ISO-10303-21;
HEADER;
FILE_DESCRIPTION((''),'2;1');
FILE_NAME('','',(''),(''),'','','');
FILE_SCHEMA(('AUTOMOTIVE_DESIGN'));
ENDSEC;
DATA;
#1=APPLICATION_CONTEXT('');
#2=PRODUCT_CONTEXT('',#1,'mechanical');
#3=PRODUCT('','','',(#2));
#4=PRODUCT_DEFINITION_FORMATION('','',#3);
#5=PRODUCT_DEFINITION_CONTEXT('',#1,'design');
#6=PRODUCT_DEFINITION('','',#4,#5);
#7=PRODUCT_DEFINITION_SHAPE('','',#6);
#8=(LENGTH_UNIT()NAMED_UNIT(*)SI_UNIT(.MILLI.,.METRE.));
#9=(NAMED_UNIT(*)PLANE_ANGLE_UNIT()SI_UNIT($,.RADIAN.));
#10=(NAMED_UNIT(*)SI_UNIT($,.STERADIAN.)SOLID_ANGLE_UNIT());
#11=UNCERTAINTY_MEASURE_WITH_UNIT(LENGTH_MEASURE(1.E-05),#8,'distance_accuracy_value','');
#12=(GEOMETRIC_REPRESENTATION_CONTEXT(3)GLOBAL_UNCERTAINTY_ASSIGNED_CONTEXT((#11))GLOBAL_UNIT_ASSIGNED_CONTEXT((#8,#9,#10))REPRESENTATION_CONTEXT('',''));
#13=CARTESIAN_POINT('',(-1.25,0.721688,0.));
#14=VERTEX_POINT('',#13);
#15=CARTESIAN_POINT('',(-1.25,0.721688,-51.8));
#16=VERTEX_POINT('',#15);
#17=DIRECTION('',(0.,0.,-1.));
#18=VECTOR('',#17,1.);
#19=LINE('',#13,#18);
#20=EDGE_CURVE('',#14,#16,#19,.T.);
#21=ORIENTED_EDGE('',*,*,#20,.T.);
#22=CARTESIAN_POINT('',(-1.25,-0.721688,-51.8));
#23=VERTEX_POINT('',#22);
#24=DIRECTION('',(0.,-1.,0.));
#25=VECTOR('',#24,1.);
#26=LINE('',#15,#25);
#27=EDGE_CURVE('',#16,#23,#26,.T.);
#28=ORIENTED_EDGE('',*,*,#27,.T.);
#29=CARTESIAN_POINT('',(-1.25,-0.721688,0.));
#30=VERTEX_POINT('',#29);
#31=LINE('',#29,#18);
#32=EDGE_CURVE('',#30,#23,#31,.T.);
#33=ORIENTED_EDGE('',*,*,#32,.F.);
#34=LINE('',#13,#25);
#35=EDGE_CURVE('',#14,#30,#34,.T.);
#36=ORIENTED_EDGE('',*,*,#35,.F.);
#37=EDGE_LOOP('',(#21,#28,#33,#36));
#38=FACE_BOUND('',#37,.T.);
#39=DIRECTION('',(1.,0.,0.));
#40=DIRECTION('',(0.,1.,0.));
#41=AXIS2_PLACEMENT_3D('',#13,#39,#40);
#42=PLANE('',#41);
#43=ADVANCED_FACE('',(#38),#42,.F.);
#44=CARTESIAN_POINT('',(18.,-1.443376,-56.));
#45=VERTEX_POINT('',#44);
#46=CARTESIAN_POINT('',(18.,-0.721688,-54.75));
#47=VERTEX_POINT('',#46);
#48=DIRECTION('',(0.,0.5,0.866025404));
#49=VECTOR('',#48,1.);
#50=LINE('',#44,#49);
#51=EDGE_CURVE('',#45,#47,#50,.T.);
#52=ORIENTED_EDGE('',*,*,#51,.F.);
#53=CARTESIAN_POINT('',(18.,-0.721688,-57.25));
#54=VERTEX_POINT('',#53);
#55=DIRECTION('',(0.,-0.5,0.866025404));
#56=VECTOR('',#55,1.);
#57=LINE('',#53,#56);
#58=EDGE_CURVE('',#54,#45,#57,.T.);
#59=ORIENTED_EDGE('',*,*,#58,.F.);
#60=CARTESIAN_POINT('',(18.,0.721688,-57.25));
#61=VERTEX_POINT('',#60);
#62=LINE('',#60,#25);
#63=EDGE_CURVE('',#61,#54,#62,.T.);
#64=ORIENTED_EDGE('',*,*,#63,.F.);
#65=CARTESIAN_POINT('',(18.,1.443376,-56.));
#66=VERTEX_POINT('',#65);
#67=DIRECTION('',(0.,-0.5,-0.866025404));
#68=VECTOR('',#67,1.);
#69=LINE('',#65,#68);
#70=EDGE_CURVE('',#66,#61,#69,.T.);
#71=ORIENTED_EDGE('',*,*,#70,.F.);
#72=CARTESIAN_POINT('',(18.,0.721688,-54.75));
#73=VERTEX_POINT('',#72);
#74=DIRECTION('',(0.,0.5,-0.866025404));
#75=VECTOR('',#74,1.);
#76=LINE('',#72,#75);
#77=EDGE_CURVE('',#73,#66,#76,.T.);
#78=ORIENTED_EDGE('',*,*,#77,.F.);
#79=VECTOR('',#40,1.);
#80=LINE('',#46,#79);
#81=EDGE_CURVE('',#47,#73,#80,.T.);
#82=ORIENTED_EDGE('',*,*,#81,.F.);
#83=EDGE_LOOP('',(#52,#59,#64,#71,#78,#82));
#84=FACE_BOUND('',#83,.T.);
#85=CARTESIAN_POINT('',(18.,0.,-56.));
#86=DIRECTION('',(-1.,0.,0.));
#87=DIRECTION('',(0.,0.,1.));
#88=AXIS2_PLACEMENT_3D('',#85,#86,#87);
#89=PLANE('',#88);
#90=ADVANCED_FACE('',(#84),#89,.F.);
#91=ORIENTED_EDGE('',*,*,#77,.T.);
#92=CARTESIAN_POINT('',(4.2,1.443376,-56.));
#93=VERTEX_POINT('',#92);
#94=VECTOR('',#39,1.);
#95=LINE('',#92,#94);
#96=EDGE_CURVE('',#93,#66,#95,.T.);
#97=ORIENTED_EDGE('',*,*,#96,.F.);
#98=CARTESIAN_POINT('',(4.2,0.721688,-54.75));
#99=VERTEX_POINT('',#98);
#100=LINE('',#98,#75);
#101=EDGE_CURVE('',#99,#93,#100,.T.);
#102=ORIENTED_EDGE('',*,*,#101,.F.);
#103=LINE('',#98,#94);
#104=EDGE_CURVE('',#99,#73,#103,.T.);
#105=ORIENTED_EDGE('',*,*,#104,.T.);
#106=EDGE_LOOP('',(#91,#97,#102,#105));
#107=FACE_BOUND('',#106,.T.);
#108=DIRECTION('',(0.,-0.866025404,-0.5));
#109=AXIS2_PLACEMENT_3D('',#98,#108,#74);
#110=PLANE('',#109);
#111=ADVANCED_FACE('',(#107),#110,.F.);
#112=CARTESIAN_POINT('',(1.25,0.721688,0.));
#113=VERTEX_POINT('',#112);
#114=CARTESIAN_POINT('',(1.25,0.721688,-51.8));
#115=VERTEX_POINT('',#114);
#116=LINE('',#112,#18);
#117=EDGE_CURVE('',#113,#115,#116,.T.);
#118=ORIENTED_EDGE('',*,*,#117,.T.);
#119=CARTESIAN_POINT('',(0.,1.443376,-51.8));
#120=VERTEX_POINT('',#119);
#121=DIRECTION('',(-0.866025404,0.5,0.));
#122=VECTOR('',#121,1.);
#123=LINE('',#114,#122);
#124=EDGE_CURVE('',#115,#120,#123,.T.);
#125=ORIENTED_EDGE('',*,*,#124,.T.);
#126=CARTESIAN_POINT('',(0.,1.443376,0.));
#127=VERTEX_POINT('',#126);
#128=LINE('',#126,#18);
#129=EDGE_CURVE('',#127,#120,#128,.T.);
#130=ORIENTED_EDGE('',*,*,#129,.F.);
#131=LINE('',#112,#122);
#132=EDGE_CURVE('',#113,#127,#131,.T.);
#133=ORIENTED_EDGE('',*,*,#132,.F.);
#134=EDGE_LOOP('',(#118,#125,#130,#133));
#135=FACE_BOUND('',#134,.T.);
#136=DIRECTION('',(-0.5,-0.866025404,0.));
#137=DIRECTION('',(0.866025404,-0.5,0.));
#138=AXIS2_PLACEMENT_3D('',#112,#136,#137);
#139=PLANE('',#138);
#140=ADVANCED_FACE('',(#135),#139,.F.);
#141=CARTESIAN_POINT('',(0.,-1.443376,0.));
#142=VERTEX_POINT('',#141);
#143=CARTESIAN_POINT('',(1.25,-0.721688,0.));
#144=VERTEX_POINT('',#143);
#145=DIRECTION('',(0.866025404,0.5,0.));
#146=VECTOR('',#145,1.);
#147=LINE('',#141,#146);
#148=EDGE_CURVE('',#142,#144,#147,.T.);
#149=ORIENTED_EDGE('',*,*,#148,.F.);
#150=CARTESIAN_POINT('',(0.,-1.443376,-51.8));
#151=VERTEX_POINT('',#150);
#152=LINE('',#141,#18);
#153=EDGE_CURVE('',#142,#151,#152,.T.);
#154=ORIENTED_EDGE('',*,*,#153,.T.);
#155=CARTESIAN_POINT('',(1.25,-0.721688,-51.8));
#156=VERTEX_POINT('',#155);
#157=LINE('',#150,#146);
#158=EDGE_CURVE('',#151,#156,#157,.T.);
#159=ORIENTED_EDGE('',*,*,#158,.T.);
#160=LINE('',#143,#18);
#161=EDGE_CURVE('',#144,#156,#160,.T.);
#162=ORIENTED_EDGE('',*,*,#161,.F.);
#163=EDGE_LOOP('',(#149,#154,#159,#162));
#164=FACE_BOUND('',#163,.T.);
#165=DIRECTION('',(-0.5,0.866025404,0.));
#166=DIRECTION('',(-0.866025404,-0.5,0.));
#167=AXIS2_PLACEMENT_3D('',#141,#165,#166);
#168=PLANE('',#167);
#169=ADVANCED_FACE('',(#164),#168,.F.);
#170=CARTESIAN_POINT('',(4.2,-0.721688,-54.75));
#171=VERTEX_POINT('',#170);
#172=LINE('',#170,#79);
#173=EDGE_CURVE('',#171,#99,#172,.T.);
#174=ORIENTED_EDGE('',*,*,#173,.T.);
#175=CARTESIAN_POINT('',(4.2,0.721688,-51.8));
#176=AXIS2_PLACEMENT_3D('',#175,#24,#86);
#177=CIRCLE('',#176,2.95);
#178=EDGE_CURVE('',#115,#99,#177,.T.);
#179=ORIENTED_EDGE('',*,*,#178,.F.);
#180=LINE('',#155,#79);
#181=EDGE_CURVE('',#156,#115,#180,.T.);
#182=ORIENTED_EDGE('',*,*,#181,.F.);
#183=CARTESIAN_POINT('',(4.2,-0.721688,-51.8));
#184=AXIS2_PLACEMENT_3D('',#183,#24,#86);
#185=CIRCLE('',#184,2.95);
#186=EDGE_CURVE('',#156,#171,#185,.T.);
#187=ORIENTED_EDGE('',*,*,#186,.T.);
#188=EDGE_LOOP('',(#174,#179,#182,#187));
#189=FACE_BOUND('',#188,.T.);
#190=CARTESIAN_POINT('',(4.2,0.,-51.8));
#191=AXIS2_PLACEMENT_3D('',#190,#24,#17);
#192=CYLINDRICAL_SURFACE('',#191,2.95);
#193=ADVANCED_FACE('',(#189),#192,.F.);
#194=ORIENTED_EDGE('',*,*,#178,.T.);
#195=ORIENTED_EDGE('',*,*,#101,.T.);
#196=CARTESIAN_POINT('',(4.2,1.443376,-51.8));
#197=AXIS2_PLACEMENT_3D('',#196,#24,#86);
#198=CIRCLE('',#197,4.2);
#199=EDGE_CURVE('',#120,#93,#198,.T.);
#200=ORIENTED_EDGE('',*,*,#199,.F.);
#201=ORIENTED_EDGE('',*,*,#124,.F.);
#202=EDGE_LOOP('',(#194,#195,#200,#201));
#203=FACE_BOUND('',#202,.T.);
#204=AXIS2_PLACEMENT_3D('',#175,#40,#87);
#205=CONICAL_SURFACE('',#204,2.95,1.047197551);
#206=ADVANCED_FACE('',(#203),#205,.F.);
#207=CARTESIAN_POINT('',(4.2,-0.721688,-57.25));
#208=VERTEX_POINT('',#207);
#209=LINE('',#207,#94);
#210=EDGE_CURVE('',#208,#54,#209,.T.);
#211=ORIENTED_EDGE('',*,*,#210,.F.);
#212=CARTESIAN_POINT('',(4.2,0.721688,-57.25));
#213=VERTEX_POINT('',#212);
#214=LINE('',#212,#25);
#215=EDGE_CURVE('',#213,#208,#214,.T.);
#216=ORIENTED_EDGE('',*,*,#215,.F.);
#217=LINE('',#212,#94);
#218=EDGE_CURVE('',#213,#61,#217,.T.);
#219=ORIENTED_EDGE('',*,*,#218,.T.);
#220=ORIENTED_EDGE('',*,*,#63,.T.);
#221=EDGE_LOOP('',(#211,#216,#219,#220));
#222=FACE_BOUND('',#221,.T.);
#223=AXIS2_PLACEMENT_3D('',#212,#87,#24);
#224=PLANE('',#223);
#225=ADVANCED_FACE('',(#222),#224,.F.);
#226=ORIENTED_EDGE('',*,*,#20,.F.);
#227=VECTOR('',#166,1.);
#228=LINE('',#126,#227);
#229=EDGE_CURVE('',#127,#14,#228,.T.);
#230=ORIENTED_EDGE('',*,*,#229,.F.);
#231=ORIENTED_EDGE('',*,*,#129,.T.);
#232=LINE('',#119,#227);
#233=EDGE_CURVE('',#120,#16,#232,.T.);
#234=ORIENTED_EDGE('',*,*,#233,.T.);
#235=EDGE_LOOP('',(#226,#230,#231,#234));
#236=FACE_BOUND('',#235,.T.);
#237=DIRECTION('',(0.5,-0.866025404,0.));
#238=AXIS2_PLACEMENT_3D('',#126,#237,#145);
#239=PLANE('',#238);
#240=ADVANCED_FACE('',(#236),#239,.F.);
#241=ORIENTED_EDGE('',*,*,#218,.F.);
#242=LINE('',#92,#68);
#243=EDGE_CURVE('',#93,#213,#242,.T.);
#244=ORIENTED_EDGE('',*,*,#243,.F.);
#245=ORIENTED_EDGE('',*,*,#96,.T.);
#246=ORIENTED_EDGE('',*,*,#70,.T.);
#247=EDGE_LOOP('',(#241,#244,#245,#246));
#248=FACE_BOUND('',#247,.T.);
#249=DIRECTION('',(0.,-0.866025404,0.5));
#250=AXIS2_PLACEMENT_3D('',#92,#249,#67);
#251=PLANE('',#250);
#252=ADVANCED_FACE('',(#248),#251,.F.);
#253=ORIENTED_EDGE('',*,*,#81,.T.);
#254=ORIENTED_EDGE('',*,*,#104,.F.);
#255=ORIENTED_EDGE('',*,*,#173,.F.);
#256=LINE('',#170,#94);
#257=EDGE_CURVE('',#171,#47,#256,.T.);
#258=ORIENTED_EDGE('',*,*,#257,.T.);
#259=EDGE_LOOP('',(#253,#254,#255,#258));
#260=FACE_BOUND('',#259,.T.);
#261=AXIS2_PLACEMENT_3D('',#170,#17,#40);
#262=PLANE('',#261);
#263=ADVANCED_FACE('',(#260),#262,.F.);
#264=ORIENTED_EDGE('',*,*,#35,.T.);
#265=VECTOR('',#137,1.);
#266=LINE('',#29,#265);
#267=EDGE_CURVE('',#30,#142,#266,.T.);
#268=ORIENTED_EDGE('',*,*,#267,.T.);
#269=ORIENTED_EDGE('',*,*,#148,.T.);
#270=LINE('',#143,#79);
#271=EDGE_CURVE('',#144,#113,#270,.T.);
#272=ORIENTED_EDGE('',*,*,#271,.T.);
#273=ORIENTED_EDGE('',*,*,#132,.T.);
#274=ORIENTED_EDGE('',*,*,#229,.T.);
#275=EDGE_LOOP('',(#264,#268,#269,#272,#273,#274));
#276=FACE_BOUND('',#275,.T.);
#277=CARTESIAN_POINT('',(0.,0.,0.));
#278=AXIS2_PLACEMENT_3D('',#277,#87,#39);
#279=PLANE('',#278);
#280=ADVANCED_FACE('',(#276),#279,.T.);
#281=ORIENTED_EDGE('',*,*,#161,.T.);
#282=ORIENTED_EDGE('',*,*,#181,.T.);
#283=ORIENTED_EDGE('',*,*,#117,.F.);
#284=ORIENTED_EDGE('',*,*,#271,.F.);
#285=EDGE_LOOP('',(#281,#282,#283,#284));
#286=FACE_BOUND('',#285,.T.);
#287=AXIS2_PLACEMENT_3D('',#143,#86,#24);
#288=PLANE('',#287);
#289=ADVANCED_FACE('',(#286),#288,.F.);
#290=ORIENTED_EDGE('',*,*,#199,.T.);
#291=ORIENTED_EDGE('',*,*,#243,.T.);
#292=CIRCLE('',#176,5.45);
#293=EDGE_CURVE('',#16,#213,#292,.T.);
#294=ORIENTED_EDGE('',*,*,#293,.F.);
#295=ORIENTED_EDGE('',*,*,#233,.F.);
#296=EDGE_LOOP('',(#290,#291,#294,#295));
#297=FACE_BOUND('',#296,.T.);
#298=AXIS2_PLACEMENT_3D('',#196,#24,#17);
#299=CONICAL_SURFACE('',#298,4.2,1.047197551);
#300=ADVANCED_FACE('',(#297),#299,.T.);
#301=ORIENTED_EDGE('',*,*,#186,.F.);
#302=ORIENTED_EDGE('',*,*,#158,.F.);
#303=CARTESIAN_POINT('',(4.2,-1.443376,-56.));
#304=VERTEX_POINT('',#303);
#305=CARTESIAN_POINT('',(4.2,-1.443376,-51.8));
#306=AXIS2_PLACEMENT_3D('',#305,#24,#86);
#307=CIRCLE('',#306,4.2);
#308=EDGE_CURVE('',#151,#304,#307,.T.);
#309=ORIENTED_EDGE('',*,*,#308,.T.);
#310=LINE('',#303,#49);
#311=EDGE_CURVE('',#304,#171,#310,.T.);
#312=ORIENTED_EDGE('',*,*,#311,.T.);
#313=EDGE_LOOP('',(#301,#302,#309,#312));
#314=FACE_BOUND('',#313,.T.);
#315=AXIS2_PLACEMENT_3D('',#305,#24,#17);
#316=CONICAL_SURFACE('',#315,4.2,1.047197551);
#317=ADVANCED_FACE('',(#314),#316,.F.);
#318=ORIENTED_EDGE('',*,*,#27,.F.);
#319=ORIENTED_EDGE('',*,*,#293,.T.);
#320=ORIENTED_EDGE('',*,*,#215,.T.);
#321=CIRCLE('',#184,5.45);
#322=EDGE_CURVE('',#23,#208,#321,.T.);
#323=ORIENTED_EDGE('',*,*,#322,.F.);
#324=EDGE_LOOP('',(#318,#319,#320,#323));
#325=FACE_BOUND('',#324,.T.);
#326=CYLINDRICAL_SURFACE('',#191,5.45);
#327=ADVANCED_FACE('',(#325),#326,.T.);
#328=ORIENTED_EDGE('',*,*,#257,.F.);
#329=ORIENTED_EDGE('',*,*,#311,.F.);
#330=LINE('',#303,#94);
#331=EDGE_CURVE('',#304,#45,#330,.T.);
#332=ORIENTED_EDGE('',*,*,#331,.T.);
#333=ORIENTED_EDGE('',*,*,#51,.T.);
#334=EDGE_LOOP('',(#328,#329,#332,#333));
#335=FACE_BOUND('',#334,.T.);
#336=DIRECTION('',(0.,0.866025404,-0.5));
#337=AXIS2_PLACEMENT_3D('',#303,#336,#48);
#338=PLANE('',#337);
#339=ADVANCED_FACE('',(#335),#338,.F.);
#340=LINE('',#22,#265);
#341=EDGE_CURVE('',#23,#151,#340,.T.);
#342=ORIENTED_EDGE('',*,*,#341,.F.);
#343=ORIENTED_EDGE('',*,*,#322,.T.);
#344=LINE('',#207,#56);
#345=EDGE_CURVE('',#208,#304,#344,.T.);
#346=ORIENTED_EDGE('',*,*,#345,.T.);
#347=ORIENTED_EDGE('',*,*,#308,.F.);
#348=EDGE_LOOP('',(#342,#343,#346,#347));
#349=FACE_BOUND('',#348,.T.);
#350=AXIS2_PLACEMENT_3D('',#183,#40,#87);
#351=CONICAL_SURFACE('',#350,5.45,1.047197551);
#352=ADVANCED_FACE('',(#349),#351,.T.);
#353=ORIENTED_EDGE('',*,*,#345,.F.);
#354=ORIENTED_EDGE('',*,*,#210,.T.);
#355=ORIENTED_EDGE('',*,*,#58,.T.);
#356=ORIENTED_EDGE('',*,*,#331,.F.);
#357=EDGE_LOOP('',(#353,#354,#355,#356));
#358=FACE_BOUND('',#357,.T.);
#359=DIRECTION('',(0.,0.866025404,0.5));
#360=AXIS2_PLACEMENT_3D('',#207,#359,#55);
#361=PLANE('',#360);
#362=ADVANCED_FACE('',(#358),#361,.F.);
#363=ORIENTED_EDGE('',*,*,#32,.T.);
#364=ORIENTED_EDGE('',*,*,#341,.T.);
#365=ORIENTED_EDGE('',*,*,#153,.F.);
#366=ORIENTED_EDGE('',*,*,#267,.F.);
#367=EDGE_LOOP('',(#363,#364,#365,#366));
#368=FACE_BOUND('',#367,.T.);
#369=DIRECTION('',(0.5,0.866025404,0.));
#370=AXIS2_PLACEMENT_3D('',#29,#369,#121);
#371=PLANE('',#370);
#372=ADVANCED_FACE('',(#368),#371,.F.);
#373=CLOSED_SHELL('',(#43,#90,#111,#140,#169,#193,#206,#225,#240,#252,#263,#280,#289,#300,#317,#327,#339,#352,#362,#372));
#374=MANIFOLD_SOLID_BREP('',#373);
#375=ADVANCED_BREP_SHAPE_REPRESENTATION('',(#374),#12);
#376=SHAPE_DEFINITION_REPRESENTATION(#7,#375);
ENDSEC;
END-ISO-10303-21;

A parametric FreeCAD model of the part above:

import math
import FreeCAD as App
import Part
import Sketcher
Q = App.Units.Quantity

doc = App.newDocument("Part")
body = doc.addObject("PartDesign::Body", "Body")

# Sketch on XY plane
sketch1 = doc.addObject("Sketcher::SketchObject", "Sketch")
body.addObject(sketch1)
sketch1.AttachmentSupport = (doc.XY_Plane, [""])
sketch1.MapMode = "FlatFace"
sketch1.addGeometry(Part.LineSegment(App.Vector(0, -1.443376, 0), App.Vector(1.25, -0.721688, 0)), False)
sketch1.addGeometry(Part.LineSegment(App.Vector(1.25, -0.721688, 0), App.Vector(1.25, 0.721688, 0)), False)
sketch1.addGeometry(Part.LineSegment(App.Vector(1.25, 0.721688, 0), App.Vector(0, 1.443376, 0)), False)
sketch1.addGeometry(Part.LineSegment(App.Vector(0, 1.443376, 0), App.Vector(-1.25, 0.721688, 0)), False)
sketch1.addGeometry(Part.LineSegment(App.Vector(-1.25, 0.721688, 0), App.Vector(-1.25, -0.721688, 0)), False)
sketch1.addGeometry(Part.LineSegment(App.Vector(-1.25, -0.721688, 0), App.Vector(0, -1.443376, 0)), False)
sketch1.addConstraint(Sketcher.Constraint("Coincident", 0, 2, 1, 1))
sketch1.addConstraint(Sketcher.Constraint("Coincident", 1, 2, 2, 1))
sketch1.addConstraint(Sketcher.Constraint("Coincident", 2, 2, 3, 1))
sketch1.addConstraint(Sketcher.Constraint("Coincident", 3, 2, 4, 1))
sketch1.addConstraint(Sketcher.Constraint("Coincident", 4, 2, 5, 1))
sketch1.addConstraint(Sketcher.Constraint("Coincident", 5, 2, 0, 1))
sketch1.addConstraint(Sketcher.Constraint("Vertical", 1))
sketch1.addConstraint(Sketcher.Constraint("Vertical", 4))
sketch1.addConstraint(Sketcher.Constraint("Symmetric", 0, 2, 3, 2, -1, 1))
sketch1.addConstraint(Sketcher.Constraint("Symmetric", 2, 2, 5, 2, -1, 1))
sketch1.addConstraint(Sketcher.Constraint("PointOnObject", 2, 2, -2))
sketch1.addConstraint(Sketcher.Constraint("Parallel", 2, 5))
sketch1.addConstraint(Sketcher.Constraint("Horizontal", 1, 2, 3, 2))
sketch1.addConstraint(Sketcher.Constraint("Angle", 0, Q("30 deg")))
sketch1.addConstraint(Sketcher.Constraint("DistanceX", 3, 2, 1, 2, Q("2.5 mm")))
sketch1.addConstraint(Sketcher.Constraint("DistanceY", 1, 1, 1, 2, Q("1.443376 mm")))

# Sketch on XZ plane
sketch2 = doc.addObject("Sketcher::SketchObject", "Sketch001")
body.addObject(sketch2)
sketch2.AttachmentSupport = (doc.XZ_Plane, [""])
sketch2.MapMode = "FlatFace"
sketch2.addGeometry(Part.LineSegment(App.Vector(0, 0, 0), App.Vector(0, -51.8, 0)), False)
sketch2.addGeometry(Part.ArcOfCircle(Part.Circle(App.Vector(4.2, -51.8, 0), App.Vector(0, 0, 1), 4.2), math.radians(180), math.radians(270)), False)
sketch2.addGeometry(Part.LineSegment(App.Vector(4.2, -56, 0), App.Vector(18, -56, 0)), False)
sketch2.addConstraint(Sketcher.Constraint("Tangent", 0, 2, 1, 1))
sketch2.addConstraint(Sketcher.Constraint("Tangent", 1, 2, 2, 1))
sketch2.addConstraint(Sketcher.Constraint("Vertical", 0))
sketch2.addConstraint(Sketcher.Constraint("Horizontal", 2))
sketch2.addConstraint(Sketcher.Constraint("Coincident", 0, 1, -1, 1))
sketch2.addConstraint(Sketcher.Constraint("Radius", 1, Q("4.2 mm")))
sketch2.addConstraint(Sketcher.Constraint("DistanceX", 2, 1, 2, 2, Q("13.8 mm")))
sketch2.addConstraint(Sketcher.Constraint("DistanceY", 0, 2, 0, 1, Q("51.8 mm")))
doc.recompute()

additivepipe = doc.addObject("PartDesign::AdditivePipe", "AdditivePipe")
body.addObject(additivepipe)
additivepipe.Profile = sketch1
additivepipe.Spine = (sketch2, ["Edge1", "Edge2", "Edge3"])

doc.recompute()
